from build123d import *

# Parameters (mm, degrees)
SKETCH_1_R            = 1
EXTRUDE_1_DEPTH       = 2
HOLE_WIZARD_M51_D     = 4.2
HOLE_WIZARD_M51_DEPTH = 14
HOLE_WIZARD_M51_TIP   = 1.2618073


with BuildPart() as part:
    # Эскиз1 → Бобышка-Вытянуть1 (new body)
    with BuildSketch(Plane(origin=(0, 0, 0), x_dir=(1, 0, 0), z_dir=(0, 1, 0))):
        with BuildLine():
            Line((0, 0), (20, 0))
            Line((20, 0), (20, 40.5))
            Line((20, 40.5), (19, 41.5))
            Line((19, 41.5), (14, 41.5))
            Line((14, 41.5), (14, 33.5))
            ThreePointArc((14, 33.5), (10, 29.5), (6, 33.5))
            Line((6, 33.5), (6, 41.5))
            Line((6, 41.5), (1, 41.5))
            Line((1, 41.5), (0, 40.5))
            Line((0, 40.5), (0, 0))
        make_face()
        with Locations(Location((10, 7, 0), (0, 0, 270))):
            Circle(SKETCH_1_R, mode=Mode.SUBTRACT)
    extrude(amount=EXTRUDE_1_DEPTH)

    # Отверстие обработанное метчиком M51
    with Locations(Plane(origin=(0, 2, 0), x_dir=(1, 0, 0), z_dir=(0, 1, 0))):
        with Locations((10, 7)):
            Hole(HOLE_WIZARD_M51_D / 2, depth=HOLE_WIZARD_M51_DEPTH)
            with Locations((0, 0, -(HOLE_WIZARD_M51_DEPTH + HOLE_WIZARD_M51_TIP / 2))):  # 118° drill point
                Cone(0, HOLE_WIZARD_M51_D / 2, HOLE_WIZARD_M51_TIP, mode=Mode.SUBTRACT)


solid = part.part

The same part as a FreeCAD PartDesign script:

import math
import FreeCAD as App
import Part
import Sketcher
from FreeCAD import Vector

doc = App.newDocument("Part")
body = doc.addObject("PartDesign::Body", "Body")

sketch1 = body.newObject("Sketcher::SketchObject", "Sketch")
sketch1.AttachmentSupport = (doc.getObject("XZ_Plane"), [""])
sketch1.MapMode = "FlatFace"
sketch1.addGeometry([
    Part.LineSegment(Vector(0, 0, 0), Vector(20, 0, 0)),
    Part.LineSegment(Vector(20, 0, 0), Vector(20, -40.5, 0)),
    Part.LineSegment(Vector(20, -40.5, 0), Vector(19, -41.5, 0)),
    Part.LineSegment(Vector(19, -41.5, 0), Vector(14, -41.5, 0)),
    Part.LineSegment(Vector(14, -41.5, 0), Vector(14, -33.5, 0)),
    Part.ArcOfCircle(Part.Circle(Vector(10, -33.5, 0), Vector(0, 0, 1), 4), math.radians(0), math.radians(180)),
    Part.LineSegment(Vector(6, -33.5, 0), Vector(6, -41.5, 0)),
    Part.LineSegment(Vector(6, -41.5, 0), Vector(1, -41.5, 0)),
    Part.LineSegment(Vector(1, -41.5, 0), Vector(0, -40.5, 0)),
    Part.LineSegment(Vector(0, -40.5, 0), Vector(0, 0, 0)),
    Part.Circle(Vector(10, -7, 0), Vector(0, 0, 1), 1),
], False)
sketch1.addConstraint([
    Sketcher.Constraint("Coincident", 0, 2, 1, 1),
    Sketcher.Constraint("Coincident", 1, 2, 2, 1),
    Sketcher.Constraint("Coincident", 2, 2, 3, 1),
    Sketcher.Constraint("Coincident", 3, 2, 4, 1),
    Sketcher.Constraint("Tangent", 4, 2, 5, 1),
    Sketcher.Constraint("Tangent", 5, 2, 6, 1),
    Sketcher.Constraint("Coincident", 6, 2, 7, 1),
    Sketcher.Constraint("Coincident", 7, 2, 8, 1),
    Sketcher.Constraint("Coincident", 8, 2, 9, 1),
    Sketcher.Constraint("Coincident", 9, 2, 0, 1),
    Sketcher.Constraint("Horizontal", 0),
    Sketcher.Constraint("Vertical", 1),
    Sketcher.Constraint("Horizontal", 3),
    Sketcher.Constraint("Vertical", 4),
    Sketcher.Constraint("Vertical", 6),
    Sketcher.Constraint("Horizontal", 7),
    Sketcher.Constraint("Vertical", 9),
    Sketcher.Constraint("Coincident", 9, 2, -1, 1),
    Sketcher.Constraint("Perpendicular", 2, 8),
    Sketcher.Constraint("Horizontal", 3, 2, 6, 2),
    Sketcher.Constraint("Horizontal", 1, 2, 8, 2),
    Sketcher.Constraint("Vertical", 5, 3, 10, 3),
    Sketcher.Constraint("Equal", 3, 7),
    Sketcher.Constraint("Equal", 2, 8),
    Sketcher.Constraint("Diameter", 10, 2.0),
    Sketcher.Constraint("Radius", 5, 4.0),
    Sketcher.Constraint("DistanceX", 0, 1, 0, 2, 20.0),
    Sketcher.Constraint("DistanceX", 3, 2, 3, 1, 5.0),
    Sketcher.Constraint("DistanceY", 4, 1, 4, 2, 8.0),
    Sketcher.Constraint("DistanceY", 1, 2, 1, 1, 40.5),
    Sketcher.Constraint("DistanceY", 10, 3, -1, 1, 7.0),
])
pad1 = body.newObject("PartDesign::Pad", "Pad")
pad1.Profile = sketch1
pad1.Length = 2
pad1.Reversed = True

sketch2 = body.newObject("Sketcher::SketchObject", "Sketch001")
sketch2.AttachmentSupport = (doc.getObject("XZ_Plane"), [""])
sketch2.MapMode = "FlatFace"
sketch2.AttachmentOffset = App.Placement(Vector(0, 0, -2), App.Rotation())
sketch2.addGeometry(Part.Circle(Vector(10, -7, 0), Vector(0, 0, 1), 2.1), False)
sketch2.addConstraint([
    Sketcher.Constraint("Diameter", 0, 4.2),
    Sketcher.Constraint("DistanceX", -1, 1, 0, 3, 10.0),
    Sketcher.Constraint("DistanceY", 0, 3, -1, 1, 7.0),
])
doc.recompute()
hole = body.newObject("PartDesign::Hole", "Hole")
hole.Profile = sketch2
hole.ThreadType = "None"
hole.Diameter = 4.2
hole.DepthType = "Dimension"
hole.Depth = 14
hole.DrillPoint = "Angled"
hole.DrillPointAngle = 118
hole.Reversed = True

doc.recompute()
